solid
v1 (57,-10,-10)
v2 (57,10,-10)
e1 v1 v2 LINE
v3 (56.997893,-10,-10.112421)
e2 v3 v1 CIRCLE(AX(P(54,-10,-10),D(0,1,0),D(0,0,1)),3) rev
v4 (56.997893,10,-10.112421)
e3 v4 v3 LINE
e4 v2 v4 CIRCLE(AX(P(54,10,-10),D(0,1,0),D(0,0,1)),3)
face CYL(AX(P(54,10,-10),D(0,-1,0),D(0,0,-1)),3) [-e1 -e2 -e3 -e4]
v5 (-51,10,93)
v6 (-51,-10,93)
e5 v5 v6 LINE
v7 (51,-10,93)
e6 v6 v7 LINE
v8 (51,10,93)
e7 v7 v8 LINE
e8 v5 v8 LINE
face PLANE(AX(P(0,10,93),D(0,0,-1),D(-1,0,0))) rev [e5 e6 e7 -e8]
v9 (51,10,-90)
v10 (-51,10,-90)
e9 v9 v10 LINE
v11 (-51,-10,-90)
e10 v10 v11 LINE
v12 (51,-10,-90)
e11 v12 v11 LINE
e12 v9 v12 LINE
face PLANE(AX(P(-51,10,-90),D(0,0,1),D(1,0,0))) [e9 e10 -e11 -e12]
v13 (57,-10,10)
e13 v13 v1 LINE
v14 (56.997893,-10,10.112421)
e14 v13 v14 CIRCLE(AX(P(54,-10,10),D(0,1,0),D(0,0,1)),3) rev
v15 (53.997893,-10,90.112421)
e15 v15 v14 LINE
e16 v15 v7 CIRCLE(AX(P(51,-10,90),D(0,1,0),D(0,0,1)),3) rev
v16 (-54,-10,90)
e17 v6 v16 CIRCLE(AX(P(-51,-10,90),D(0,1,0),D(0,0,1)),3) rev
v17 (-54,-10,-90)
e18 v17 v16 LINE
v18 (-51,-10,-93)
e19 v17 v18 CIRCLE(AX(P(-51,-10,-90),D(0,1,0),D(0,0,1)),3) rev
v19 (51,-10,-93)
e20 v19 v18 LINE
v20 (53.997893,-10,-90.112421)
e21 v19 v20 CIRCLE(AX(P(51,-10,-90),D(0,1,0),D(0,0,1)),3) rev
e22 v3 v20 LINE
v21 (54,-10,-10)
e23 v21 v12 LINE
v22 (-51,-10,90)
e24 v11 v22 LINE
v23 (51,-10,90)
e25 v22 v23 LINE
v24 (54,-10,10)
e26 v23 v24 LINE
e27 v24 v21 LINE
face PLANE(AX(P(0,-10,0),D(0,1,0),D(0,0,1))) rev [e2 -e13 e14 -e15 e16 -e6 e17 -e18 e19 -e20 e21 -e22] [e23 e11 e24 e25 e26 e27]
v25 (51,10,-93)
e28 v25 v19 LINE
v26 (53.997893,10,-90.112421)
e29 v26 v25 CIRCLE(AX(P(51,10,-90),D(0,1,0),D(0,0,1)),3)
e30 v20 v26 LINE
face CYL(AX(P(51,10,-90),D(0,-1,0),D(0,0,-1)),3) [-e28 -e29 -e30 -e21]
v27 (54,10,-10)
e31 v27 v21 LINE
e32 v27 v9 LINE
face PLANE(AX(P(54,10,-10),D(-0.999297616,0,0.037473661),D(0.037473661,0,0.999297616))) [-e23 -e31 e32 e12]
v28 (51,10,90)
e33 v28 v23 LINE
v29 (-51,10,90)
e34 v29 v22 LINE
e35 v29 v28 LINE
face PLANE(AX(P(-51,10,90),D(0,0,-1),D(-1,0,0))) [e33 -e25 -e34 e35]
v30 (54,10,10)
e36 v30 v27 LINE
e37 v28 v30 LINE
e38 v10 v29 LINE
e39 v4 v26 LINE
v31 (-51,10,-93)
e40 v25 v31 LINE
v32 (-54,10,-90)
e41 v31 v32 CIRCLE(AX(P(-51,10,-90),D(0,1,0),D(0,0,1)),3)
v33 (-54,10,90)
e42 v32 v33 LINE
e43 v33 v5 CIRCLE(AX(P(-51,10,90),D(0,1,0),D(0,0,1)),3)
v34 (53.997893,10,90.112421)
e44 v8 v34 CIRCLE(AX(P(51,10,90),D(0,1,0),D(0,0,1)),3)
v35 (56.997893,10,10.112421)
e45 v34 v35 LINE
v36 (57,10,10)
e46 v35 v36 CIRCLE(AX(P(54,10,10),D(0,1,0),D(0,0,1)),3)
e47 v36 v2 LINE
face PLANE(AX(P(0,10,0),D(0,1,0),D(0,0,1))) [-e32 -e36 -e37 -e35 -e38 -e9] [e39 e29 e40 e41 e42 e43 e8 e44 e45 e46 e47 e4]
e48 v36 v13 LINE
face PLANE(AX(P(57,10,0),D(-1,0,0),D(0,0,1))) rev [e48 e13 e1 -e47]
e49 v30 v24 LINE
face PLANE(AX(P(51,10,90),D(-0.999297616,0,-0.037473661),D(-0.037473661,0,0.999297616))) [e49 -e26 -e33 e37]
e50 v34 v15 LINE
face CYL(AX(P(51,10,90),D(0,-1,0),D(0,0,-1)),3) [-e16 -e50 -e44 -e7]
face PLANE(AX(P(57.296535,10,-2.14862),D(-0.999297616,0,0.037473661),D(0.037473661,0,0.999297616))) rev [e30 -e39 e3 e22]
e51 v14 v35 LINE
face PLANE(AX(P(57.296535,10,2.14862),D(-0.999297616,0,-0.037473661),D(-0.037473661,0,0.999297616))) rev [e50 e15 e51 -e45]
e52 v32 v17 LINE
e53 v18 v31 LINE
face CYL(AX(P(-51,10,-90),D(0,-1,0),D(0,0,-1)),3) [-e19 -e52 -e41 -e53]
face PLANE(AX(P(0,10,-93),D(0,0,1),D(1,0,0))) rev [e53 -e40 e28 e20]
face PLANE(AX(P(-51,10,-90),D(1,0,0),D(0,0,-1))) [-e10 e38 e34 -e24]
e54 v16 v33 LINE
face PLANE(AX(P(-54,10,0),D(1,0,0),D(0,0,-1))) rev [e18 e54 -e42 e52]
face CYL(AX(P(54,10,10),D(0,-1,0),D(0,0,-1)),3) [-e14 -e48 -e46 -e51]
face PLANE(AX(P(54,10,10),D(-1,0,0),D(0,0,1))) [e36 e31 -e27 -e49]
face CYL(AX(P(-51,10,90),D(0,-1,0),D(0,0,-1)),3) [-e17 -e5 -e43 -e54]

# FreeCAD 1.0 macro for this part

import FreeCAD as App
import Part
import Sketcher
from FreeCAD import Vector
Q = App.Units.Quantity


def edges_at(feature, points):
    """Names of the edges that pass closest to the given points."""
    edges = feature.Shape.Edges
    near = lambda p: min(range(len(edges)), key=lambda i: edges[i].distToShape(Part.Vertex(*p))[0])
    return sorted({f"Edge{near(p) + 1}" for p in points})


def add_polygon(sketch, points):
    """Adds a closed chain of lines whose ends are joined by coincident constraints."""
    first, n = sketch.GeometryCount, len(points)
    for a, b in zip(points, points[1:] + points[:1]):
        sketch.addGeometry(Part.LineSegment(App.Vector(*a, 0), App.Vector(*b, 0)), False)
    for i in range(n):
        sketch.addConstraint(Sketcher.Constraint("Coincident", first + i, 2, first + (i + 1) % n, 1))

doc = App.newDocument("Part")
body = doc.addObject("PartDesign::Body", "Body")

# Sketch on XZ plane
sketch1 = doc.addObject("Sketcher::SketchObject", "Sketch")
body.addObject(sketch1)
sketch1.AttachmentSupport = (doc.XZ_Plane, [""])
sketch1.MapMode = "FlatFace"
add_polygon(sketch1, [(57, 10), (57, -10), (54, -93), (-54, -93), (-54, 93), (54, 93)])  # lines 0-5
add_polygon(sketch1, [(54, -10), (54, 10), (51, 90), (-51, 90), (-51, -90), (51, -90)])  # lines 6-11
sketch1.addConstraint([
    Sketcher.Constraint("Vertical", 0),
    Sketcher.Constraint("Horizontal", 2),
    Sketcher.Constraint("Vertical", 3),
    Sketcher.Constraint("Horizontal", 4),
    Sketcher.Constraint("Vertical", 6),
    Sketcher.Constraint("Horizontal", 8),
    Sketcher.Constraint("Vertical", 9),
    Sketcher.Constraint("Horizontal", 10),
    Sketcher.Constraint("Symmetric", 7, 2, 9, 2, -1, 1),
    Sketcher.Constraint("Symmetric", 1, 2, 4, 2, -1),
    Sketcher.Constraint("Parallel", 5, 7),
    Sketcher.Constraint("Parallel", 1, 11),
    Sketcher.Constraint("Vertical", 7, 2, 10, 2),
    Sketcher.Constraint("Equal", 1, 5),
    Sketcher.Constraint("DistanceX", 8, 2, 8, 1, Q("102 mm")),
    Sketcher.Constraint("DistanceY", 3, 1, 3, 2, Q("186 mm")),
    Sketcher.Constraint("DistanceY", 6, 1, 6, 2, Q("20 mm")),
    Sketcher.Constraint("DistanceY", 9, 2, 9, 1, Q("180 mm")),
    Sketcher.Constraint("DistanceX", -1, 1, 0, 2, Q("57 mm")),
    Sketcher.Constraint("DistanceX", 2, 2, -1, 1, Q("54 mm")),
    Sketcher.Constraint("DistanceX", -1, 1, 6, 2, Q("54 mm")),
    Sketcher.Constraint("DistanceX", 2, 2, 2, 1, Q("107.889609 mm")),
])
pad1 = doc.addObject("PartDesign::Pad", "Pad")
body.addObject(pad1)
pad1.Profile = sketch1
pad1.Length = 20
pad1.Midplane = True
doc.recompute()

fillet = doc.addObject("PartDesign::Fillet", "Fillet")
body.addObject(fillet)
fillet.Base = (pad1, edges_at(pad1, [
    (57, 0, 10.056),
    (53.89, 0, 93),
    (-54, 0, 93),
    (-54, 0, -93),
    (53.89, 0, -93),
    (57, 0, -10.056),
]))
fillet.Radius = 3

doc.recompute()
